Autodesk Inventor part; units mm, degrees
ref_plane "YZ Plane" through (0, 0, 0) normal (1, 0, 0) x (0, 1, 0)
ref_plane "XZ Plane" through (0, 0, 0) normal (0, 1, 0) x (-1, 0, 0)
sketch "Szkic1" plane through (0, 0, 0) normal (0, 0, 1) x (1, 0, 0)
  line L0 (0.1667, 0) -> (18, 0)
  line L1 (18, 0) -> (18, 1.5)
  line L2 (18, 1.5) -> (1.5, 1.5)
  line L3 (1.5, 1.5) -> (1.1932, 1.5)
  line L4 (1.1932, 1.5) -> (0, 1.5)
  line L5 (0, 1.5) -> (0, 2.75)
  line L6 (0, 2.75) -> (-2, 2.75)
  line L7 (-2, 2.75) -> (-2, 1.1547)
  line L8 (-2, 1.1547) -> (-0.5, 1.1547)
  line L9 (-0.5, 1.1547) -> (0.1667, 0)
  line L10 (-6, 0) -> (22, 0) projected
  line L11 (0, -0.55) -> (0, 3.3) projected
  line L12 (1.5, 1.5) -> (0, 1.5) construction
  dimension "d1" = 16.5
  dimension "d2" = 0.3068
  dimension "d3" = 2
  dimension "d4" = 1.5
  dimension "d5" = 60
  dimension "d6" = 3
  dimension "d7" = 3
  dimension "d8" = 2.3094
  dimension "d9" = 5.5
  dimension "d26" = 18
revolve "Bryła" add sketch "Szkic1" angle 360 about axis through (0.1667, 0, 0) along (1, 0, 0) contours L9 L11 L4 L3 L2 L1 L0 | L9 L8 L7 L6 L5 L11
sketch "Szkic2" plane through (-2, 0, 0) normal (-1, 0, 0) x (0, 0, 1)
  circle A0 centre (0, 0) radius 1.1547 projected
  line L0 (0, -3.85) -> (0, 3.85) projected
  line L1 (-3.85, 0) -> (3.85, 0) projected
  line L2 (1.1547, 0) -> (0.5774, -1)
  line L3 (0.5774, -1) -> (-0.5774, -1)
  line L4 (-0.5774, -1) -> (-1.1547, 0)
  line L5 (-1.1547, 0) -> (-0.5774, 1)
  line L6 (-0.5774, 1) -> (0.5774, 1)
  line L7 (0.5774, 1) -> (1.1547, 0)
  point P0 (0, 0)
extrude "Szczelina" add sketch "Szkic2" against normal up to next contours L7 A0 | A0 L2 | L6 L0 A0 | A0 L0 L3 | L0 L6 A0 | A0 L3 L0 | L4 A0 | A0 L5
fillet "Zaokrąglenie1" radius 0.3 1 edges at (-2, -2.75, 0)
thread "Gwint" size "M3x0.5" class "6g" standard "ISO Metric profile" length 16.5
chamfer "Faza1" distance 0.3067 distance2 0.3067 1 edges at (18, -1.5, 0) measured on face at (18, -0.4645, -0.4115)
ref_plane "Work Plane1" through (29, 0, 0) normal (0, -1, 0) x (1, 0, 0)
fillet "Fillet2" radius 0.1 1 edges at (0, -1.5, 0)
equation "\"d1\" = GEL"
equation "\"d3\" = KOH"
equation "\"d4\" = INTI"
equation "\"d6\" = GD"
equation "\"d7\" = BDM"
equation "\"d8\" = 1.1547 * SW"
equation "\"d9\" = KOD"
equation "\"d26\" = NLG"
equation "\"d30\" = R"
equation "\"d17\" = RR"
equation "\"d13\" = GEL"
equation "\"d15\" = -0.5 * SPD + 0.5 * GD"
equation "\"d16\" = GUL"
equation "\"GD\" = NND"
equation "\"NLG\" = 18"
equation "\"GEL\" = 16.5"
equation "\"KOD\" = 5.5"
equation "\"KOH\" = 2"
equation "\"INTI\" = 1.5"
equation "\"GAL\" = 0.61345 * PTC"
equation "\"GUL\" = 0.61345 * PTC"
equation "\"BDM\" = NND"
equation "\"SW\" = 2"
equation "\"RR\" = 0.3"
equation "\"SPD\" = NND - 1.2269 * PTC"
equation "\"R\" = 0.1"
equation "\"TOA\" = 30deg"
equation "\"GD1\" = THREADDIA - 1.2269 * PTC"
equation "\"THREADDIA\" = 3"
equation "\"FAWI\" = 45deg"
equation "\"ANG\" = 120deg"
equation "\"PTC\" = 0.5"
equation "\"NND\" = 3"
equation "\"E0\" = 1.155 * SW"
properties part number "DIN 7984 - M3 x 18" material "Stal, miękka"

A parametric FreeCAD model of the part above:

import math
import FreeCAD as App
import Part
import Sketcher

V = App.Vector


def edges_at(feature, points):
    """Names of the edges that pass closest to the given points."""
    edges = feature.Shape.Edges
    near = lambda p: min(range(len(edges)), key=lambda i: edges[i].distToShape(Part.Vertex(*p))[0])
    return sorted({f"Edge{near(p) + 1}" for p in points})


def add_polygon(sketch, points):
    """Adds a closed chain of lines whose ends are joined by coincident constraints."""
    first, n = sketch.GeometryCount, len(points)
    for a, b in zip(points, points[1:] + points[:1]):
        sketch.addGeometry(Part.LineSegment(App.Vector(*a, 0), App.Vector(*b, 0)), False)
    for i in range(n):
        sketch.addConstraint(Sketcher.Constraint("Coincident", first + i, 2, first + (i + 1) % n, 1))

doc = App.newDocument("Part")
body = doc.addObject("PartDesign::Body", "Body")

# Sketch on XY plane
sketch1 = body.newObject("Sketcher::SketchObject", "Sketch")
sketch1.AttachmentSupport = (doc.getObject("XY_Plane"), [""])
sketch1.MapMode = "FlatFace"
add_polygon(sketch1, [(0.2, 0), (18, 0), (18, 1.5), (0, 1.5), (0, 2.8), (-2, 2.8), (-2, 1.2), (-0.5, 1.2)])  # lines 0-7
sketch1.addConstraint([
    Sketcher.Constraint("Horizontal", 0),
    Sketcher.Constraint("Vertical", 1),
    Sketcher.Constraint("Horizontal", 2),
    Sketcher.Constraint("Vertical", 3),
    Sketcher.Constraint("Horizontal", 4),
    Sketcher.Constraint("Vertical", 5),
    Sketcher.Constraint("Horizontal", 6),
    Sketcher.Constraint("PointOnObject", 0, 2, -1),
    Sketcher.Constraint("PointOnObject", 2, 2, -2),
    Sketcher.Constraint("Equal", 6, 1),
    Sketcher.Constraint("DistanceX", 2, 2, 2, 1, 18.0),
    Sketcher.Constraint("DistanceX", 4, 2, 4, 1, 2.0),
    Sketcher.Constraint("DistanceX", 6, 1, 6, 2, 1.5),
    Sketcher.Constraint("DistanceY", 3, 1, 3, 2, 1.25),
    Sketcher.Constraint("DistanceX", 0, 1, 0, 2, 17.8333),
    Sketcher.Constraint("DistanceY", 5, 2, 5, 1, 1.5953),
])
revolution = body.newObject("PartDesign::Revolution", "Revolution")
revolution.Profile = sketch1
revolution.ReferenceAxis = (sketch1, ["H_Axis"])
revolution.Angle = 360

# Sketch on YZ plane
sketch2 = body.newObject("Sketcher::SketchObject", "Sketch001")
sketch2.AttachmentSupport = (doc.getObject("YZ_Plane"), [""])
sketch2.MapMode = "FlatFace"
sketch2.AttachmentOffset = App.Placement(V(0, 0, -2), App.Rotation())
sketch2.addGeometry([
    Part.LineSegment(V(1, 0.6, 0), V(0, 1.2, 0)),  # 0
    Part.ArcOfCircle(Part.Circle(V(0, 0, 0), V(0, 0, 1), 1.2), math.radians(30), math.radians(90)),  # 1
    Part.ArcOfCircle(Part.Circle(V(0, 0, 0), V(0, 0, 1), 1.2), math.radians(90), math.radians(150)),  # 2
    Part.LineSegment(V(0, 1.2, 0), V(-1, 0.6, 0)),  # 3
    Part.ArcOfCircle(Part.Circle(V(0, 0, 0), V(0, 0, 1), 1.2), math.radians(-30), math.radians(30)),  # 4
    Part.LineSegment(V(1, 0.6, 0), V(1, -0.6, 0)),  # 5
    Part.LineSegment(V(-1, 0.6, 0), V(-1, -0.6, 0)),  # 6
    Part.ArcOfCircle(Part.Circle(V(0, 0, 0), V(0, 0, 1), 1.2), math.radians(150), math.radians(210)),  # 7
    Part.LineSegment(V(-1, -0.6, 0), V(0, -1.2, 0)),  # 8
    Part.ArcOfCircle(Part.Circle(V(0, 0, 0), V(0, 0, 1), 1.2), math.radians(-150), math.radians(-90)),  # 9
    Part.ArcOfCircle(Part.Circle(V(0, 0, 0), V(0, 0, 1), 1.2), math.radians(-90), math.radians(-30)),  # 10
    Part.LineSegment(V(0, -1.2, 0), V(1, -0.6, 0)),  # 11
], False)
sketch2.addConstraint([
    Sketcher.Constraint("Coincident", 0, 1, 1, 1),
    Sketcher.Constraint("Coincident", 1, 2, 0, 2),
    Sketcher.Constraint("Coincident", 2, 1, 3, 1),
    Sketcher.Constraint("Coincident", 3, 2, 2, 2),
    Sketcher.Constraint("Coincident", 4, 1, 5, 2),
    Sketcher.Constraint("Coincident", 5, 1, 4, 2),
    Sketcher.Constraint("Coincident", 6, 1, 7, 1),
    Sketcher.Constraint("Coincident", 7, 2, 6, 2),
    Sketcher.Constraint("Coincident", 8, 1, 9, 1),
    Sketcher.Constraint("Coincident", 9, 2, 8, 2),
    Sketcher.Constraint("Coincident", 10, 1, 11, 1),
    Sketcher.Constraint("Coincident", 11, 2, 10, 2),
    Sketcher.Constraint("Vertical", 5),
    Sketcher.Constraint("Vertical", 6),
    Sketcher.Constraint("Coincident", 1, 3, -1, 1),
    Sketcher.Constraint("Coincident", 2, 3, -1, 1),
    Sketcher.Constraint("Coincident", 4, 3, -1, 1),
    Sketcher.Constraint("Coincident", 7, 3, -1, 1),
    Sketcher.Constraint("Coincident", 9, 3, -1, 1),
    Sketcher.Constraint("Coincident", 10, 3, -1, 1),
    Sketcher.Constraint("Coincident", 2, 1, 1, 2),
    Sketcher.Constraint("Coincident", 5, 1, 0, 1),
    Sketcher.Constraint("Coincident", 6, 1, 3, 2),
    Sketcher.Constraint("Coincident", 8, 1, 7, 2),
    Sketcher.Constraint("Coincident", 10, 1, 9, 2),
    Sketcher.Constraint("PointOnObject", 1, 2, -2),
    Sketcher.Constraint("PointOnObject", 9, 2, -2),
    Sketcher.Constraint("Parallel", 0, 8),
    Sketcher.Constraint("Parallel", 3, 11),
    Sketcher.Constraint("DistanceX", -1, 1, 0, 1, 1.0),
    Sketcher.Constraint("Radius", 1, 1.1547),
])
pad1 = body.newObject("PartDesign::Pad", "Pad")
pad1.Profile = sketch2
pad1.Type = "UpToFirst"
doc.recompute()

fillet = body.newObject("PartDesign::Fillet", "Fillet")
fillet.Base = (pad1, edges_at(pad1, [(-2, -2.75, 0)]))
fillet.Radius = 0.3
doc.recompute()

chamfer = body.newObject("PartDesign::Chamfer", "Chamfer")
chamfer.Base = (fillet, edges_at(fillet, [(18, -1.5, 0)]))
chamfer.ChamferType = "Two distances"
chamfer.Size = 0.3067
chamfer.Size2 = 0.3067
doc.recompute()

fillet2 = body.newObject("PartDesign::Fillet", "Fillet001")
fillet2.Base = (chamfer, edges_at(chamfer, [(0, -1.5, 0)]))
fillet2.Radius = 0.1

doc.recompute()
